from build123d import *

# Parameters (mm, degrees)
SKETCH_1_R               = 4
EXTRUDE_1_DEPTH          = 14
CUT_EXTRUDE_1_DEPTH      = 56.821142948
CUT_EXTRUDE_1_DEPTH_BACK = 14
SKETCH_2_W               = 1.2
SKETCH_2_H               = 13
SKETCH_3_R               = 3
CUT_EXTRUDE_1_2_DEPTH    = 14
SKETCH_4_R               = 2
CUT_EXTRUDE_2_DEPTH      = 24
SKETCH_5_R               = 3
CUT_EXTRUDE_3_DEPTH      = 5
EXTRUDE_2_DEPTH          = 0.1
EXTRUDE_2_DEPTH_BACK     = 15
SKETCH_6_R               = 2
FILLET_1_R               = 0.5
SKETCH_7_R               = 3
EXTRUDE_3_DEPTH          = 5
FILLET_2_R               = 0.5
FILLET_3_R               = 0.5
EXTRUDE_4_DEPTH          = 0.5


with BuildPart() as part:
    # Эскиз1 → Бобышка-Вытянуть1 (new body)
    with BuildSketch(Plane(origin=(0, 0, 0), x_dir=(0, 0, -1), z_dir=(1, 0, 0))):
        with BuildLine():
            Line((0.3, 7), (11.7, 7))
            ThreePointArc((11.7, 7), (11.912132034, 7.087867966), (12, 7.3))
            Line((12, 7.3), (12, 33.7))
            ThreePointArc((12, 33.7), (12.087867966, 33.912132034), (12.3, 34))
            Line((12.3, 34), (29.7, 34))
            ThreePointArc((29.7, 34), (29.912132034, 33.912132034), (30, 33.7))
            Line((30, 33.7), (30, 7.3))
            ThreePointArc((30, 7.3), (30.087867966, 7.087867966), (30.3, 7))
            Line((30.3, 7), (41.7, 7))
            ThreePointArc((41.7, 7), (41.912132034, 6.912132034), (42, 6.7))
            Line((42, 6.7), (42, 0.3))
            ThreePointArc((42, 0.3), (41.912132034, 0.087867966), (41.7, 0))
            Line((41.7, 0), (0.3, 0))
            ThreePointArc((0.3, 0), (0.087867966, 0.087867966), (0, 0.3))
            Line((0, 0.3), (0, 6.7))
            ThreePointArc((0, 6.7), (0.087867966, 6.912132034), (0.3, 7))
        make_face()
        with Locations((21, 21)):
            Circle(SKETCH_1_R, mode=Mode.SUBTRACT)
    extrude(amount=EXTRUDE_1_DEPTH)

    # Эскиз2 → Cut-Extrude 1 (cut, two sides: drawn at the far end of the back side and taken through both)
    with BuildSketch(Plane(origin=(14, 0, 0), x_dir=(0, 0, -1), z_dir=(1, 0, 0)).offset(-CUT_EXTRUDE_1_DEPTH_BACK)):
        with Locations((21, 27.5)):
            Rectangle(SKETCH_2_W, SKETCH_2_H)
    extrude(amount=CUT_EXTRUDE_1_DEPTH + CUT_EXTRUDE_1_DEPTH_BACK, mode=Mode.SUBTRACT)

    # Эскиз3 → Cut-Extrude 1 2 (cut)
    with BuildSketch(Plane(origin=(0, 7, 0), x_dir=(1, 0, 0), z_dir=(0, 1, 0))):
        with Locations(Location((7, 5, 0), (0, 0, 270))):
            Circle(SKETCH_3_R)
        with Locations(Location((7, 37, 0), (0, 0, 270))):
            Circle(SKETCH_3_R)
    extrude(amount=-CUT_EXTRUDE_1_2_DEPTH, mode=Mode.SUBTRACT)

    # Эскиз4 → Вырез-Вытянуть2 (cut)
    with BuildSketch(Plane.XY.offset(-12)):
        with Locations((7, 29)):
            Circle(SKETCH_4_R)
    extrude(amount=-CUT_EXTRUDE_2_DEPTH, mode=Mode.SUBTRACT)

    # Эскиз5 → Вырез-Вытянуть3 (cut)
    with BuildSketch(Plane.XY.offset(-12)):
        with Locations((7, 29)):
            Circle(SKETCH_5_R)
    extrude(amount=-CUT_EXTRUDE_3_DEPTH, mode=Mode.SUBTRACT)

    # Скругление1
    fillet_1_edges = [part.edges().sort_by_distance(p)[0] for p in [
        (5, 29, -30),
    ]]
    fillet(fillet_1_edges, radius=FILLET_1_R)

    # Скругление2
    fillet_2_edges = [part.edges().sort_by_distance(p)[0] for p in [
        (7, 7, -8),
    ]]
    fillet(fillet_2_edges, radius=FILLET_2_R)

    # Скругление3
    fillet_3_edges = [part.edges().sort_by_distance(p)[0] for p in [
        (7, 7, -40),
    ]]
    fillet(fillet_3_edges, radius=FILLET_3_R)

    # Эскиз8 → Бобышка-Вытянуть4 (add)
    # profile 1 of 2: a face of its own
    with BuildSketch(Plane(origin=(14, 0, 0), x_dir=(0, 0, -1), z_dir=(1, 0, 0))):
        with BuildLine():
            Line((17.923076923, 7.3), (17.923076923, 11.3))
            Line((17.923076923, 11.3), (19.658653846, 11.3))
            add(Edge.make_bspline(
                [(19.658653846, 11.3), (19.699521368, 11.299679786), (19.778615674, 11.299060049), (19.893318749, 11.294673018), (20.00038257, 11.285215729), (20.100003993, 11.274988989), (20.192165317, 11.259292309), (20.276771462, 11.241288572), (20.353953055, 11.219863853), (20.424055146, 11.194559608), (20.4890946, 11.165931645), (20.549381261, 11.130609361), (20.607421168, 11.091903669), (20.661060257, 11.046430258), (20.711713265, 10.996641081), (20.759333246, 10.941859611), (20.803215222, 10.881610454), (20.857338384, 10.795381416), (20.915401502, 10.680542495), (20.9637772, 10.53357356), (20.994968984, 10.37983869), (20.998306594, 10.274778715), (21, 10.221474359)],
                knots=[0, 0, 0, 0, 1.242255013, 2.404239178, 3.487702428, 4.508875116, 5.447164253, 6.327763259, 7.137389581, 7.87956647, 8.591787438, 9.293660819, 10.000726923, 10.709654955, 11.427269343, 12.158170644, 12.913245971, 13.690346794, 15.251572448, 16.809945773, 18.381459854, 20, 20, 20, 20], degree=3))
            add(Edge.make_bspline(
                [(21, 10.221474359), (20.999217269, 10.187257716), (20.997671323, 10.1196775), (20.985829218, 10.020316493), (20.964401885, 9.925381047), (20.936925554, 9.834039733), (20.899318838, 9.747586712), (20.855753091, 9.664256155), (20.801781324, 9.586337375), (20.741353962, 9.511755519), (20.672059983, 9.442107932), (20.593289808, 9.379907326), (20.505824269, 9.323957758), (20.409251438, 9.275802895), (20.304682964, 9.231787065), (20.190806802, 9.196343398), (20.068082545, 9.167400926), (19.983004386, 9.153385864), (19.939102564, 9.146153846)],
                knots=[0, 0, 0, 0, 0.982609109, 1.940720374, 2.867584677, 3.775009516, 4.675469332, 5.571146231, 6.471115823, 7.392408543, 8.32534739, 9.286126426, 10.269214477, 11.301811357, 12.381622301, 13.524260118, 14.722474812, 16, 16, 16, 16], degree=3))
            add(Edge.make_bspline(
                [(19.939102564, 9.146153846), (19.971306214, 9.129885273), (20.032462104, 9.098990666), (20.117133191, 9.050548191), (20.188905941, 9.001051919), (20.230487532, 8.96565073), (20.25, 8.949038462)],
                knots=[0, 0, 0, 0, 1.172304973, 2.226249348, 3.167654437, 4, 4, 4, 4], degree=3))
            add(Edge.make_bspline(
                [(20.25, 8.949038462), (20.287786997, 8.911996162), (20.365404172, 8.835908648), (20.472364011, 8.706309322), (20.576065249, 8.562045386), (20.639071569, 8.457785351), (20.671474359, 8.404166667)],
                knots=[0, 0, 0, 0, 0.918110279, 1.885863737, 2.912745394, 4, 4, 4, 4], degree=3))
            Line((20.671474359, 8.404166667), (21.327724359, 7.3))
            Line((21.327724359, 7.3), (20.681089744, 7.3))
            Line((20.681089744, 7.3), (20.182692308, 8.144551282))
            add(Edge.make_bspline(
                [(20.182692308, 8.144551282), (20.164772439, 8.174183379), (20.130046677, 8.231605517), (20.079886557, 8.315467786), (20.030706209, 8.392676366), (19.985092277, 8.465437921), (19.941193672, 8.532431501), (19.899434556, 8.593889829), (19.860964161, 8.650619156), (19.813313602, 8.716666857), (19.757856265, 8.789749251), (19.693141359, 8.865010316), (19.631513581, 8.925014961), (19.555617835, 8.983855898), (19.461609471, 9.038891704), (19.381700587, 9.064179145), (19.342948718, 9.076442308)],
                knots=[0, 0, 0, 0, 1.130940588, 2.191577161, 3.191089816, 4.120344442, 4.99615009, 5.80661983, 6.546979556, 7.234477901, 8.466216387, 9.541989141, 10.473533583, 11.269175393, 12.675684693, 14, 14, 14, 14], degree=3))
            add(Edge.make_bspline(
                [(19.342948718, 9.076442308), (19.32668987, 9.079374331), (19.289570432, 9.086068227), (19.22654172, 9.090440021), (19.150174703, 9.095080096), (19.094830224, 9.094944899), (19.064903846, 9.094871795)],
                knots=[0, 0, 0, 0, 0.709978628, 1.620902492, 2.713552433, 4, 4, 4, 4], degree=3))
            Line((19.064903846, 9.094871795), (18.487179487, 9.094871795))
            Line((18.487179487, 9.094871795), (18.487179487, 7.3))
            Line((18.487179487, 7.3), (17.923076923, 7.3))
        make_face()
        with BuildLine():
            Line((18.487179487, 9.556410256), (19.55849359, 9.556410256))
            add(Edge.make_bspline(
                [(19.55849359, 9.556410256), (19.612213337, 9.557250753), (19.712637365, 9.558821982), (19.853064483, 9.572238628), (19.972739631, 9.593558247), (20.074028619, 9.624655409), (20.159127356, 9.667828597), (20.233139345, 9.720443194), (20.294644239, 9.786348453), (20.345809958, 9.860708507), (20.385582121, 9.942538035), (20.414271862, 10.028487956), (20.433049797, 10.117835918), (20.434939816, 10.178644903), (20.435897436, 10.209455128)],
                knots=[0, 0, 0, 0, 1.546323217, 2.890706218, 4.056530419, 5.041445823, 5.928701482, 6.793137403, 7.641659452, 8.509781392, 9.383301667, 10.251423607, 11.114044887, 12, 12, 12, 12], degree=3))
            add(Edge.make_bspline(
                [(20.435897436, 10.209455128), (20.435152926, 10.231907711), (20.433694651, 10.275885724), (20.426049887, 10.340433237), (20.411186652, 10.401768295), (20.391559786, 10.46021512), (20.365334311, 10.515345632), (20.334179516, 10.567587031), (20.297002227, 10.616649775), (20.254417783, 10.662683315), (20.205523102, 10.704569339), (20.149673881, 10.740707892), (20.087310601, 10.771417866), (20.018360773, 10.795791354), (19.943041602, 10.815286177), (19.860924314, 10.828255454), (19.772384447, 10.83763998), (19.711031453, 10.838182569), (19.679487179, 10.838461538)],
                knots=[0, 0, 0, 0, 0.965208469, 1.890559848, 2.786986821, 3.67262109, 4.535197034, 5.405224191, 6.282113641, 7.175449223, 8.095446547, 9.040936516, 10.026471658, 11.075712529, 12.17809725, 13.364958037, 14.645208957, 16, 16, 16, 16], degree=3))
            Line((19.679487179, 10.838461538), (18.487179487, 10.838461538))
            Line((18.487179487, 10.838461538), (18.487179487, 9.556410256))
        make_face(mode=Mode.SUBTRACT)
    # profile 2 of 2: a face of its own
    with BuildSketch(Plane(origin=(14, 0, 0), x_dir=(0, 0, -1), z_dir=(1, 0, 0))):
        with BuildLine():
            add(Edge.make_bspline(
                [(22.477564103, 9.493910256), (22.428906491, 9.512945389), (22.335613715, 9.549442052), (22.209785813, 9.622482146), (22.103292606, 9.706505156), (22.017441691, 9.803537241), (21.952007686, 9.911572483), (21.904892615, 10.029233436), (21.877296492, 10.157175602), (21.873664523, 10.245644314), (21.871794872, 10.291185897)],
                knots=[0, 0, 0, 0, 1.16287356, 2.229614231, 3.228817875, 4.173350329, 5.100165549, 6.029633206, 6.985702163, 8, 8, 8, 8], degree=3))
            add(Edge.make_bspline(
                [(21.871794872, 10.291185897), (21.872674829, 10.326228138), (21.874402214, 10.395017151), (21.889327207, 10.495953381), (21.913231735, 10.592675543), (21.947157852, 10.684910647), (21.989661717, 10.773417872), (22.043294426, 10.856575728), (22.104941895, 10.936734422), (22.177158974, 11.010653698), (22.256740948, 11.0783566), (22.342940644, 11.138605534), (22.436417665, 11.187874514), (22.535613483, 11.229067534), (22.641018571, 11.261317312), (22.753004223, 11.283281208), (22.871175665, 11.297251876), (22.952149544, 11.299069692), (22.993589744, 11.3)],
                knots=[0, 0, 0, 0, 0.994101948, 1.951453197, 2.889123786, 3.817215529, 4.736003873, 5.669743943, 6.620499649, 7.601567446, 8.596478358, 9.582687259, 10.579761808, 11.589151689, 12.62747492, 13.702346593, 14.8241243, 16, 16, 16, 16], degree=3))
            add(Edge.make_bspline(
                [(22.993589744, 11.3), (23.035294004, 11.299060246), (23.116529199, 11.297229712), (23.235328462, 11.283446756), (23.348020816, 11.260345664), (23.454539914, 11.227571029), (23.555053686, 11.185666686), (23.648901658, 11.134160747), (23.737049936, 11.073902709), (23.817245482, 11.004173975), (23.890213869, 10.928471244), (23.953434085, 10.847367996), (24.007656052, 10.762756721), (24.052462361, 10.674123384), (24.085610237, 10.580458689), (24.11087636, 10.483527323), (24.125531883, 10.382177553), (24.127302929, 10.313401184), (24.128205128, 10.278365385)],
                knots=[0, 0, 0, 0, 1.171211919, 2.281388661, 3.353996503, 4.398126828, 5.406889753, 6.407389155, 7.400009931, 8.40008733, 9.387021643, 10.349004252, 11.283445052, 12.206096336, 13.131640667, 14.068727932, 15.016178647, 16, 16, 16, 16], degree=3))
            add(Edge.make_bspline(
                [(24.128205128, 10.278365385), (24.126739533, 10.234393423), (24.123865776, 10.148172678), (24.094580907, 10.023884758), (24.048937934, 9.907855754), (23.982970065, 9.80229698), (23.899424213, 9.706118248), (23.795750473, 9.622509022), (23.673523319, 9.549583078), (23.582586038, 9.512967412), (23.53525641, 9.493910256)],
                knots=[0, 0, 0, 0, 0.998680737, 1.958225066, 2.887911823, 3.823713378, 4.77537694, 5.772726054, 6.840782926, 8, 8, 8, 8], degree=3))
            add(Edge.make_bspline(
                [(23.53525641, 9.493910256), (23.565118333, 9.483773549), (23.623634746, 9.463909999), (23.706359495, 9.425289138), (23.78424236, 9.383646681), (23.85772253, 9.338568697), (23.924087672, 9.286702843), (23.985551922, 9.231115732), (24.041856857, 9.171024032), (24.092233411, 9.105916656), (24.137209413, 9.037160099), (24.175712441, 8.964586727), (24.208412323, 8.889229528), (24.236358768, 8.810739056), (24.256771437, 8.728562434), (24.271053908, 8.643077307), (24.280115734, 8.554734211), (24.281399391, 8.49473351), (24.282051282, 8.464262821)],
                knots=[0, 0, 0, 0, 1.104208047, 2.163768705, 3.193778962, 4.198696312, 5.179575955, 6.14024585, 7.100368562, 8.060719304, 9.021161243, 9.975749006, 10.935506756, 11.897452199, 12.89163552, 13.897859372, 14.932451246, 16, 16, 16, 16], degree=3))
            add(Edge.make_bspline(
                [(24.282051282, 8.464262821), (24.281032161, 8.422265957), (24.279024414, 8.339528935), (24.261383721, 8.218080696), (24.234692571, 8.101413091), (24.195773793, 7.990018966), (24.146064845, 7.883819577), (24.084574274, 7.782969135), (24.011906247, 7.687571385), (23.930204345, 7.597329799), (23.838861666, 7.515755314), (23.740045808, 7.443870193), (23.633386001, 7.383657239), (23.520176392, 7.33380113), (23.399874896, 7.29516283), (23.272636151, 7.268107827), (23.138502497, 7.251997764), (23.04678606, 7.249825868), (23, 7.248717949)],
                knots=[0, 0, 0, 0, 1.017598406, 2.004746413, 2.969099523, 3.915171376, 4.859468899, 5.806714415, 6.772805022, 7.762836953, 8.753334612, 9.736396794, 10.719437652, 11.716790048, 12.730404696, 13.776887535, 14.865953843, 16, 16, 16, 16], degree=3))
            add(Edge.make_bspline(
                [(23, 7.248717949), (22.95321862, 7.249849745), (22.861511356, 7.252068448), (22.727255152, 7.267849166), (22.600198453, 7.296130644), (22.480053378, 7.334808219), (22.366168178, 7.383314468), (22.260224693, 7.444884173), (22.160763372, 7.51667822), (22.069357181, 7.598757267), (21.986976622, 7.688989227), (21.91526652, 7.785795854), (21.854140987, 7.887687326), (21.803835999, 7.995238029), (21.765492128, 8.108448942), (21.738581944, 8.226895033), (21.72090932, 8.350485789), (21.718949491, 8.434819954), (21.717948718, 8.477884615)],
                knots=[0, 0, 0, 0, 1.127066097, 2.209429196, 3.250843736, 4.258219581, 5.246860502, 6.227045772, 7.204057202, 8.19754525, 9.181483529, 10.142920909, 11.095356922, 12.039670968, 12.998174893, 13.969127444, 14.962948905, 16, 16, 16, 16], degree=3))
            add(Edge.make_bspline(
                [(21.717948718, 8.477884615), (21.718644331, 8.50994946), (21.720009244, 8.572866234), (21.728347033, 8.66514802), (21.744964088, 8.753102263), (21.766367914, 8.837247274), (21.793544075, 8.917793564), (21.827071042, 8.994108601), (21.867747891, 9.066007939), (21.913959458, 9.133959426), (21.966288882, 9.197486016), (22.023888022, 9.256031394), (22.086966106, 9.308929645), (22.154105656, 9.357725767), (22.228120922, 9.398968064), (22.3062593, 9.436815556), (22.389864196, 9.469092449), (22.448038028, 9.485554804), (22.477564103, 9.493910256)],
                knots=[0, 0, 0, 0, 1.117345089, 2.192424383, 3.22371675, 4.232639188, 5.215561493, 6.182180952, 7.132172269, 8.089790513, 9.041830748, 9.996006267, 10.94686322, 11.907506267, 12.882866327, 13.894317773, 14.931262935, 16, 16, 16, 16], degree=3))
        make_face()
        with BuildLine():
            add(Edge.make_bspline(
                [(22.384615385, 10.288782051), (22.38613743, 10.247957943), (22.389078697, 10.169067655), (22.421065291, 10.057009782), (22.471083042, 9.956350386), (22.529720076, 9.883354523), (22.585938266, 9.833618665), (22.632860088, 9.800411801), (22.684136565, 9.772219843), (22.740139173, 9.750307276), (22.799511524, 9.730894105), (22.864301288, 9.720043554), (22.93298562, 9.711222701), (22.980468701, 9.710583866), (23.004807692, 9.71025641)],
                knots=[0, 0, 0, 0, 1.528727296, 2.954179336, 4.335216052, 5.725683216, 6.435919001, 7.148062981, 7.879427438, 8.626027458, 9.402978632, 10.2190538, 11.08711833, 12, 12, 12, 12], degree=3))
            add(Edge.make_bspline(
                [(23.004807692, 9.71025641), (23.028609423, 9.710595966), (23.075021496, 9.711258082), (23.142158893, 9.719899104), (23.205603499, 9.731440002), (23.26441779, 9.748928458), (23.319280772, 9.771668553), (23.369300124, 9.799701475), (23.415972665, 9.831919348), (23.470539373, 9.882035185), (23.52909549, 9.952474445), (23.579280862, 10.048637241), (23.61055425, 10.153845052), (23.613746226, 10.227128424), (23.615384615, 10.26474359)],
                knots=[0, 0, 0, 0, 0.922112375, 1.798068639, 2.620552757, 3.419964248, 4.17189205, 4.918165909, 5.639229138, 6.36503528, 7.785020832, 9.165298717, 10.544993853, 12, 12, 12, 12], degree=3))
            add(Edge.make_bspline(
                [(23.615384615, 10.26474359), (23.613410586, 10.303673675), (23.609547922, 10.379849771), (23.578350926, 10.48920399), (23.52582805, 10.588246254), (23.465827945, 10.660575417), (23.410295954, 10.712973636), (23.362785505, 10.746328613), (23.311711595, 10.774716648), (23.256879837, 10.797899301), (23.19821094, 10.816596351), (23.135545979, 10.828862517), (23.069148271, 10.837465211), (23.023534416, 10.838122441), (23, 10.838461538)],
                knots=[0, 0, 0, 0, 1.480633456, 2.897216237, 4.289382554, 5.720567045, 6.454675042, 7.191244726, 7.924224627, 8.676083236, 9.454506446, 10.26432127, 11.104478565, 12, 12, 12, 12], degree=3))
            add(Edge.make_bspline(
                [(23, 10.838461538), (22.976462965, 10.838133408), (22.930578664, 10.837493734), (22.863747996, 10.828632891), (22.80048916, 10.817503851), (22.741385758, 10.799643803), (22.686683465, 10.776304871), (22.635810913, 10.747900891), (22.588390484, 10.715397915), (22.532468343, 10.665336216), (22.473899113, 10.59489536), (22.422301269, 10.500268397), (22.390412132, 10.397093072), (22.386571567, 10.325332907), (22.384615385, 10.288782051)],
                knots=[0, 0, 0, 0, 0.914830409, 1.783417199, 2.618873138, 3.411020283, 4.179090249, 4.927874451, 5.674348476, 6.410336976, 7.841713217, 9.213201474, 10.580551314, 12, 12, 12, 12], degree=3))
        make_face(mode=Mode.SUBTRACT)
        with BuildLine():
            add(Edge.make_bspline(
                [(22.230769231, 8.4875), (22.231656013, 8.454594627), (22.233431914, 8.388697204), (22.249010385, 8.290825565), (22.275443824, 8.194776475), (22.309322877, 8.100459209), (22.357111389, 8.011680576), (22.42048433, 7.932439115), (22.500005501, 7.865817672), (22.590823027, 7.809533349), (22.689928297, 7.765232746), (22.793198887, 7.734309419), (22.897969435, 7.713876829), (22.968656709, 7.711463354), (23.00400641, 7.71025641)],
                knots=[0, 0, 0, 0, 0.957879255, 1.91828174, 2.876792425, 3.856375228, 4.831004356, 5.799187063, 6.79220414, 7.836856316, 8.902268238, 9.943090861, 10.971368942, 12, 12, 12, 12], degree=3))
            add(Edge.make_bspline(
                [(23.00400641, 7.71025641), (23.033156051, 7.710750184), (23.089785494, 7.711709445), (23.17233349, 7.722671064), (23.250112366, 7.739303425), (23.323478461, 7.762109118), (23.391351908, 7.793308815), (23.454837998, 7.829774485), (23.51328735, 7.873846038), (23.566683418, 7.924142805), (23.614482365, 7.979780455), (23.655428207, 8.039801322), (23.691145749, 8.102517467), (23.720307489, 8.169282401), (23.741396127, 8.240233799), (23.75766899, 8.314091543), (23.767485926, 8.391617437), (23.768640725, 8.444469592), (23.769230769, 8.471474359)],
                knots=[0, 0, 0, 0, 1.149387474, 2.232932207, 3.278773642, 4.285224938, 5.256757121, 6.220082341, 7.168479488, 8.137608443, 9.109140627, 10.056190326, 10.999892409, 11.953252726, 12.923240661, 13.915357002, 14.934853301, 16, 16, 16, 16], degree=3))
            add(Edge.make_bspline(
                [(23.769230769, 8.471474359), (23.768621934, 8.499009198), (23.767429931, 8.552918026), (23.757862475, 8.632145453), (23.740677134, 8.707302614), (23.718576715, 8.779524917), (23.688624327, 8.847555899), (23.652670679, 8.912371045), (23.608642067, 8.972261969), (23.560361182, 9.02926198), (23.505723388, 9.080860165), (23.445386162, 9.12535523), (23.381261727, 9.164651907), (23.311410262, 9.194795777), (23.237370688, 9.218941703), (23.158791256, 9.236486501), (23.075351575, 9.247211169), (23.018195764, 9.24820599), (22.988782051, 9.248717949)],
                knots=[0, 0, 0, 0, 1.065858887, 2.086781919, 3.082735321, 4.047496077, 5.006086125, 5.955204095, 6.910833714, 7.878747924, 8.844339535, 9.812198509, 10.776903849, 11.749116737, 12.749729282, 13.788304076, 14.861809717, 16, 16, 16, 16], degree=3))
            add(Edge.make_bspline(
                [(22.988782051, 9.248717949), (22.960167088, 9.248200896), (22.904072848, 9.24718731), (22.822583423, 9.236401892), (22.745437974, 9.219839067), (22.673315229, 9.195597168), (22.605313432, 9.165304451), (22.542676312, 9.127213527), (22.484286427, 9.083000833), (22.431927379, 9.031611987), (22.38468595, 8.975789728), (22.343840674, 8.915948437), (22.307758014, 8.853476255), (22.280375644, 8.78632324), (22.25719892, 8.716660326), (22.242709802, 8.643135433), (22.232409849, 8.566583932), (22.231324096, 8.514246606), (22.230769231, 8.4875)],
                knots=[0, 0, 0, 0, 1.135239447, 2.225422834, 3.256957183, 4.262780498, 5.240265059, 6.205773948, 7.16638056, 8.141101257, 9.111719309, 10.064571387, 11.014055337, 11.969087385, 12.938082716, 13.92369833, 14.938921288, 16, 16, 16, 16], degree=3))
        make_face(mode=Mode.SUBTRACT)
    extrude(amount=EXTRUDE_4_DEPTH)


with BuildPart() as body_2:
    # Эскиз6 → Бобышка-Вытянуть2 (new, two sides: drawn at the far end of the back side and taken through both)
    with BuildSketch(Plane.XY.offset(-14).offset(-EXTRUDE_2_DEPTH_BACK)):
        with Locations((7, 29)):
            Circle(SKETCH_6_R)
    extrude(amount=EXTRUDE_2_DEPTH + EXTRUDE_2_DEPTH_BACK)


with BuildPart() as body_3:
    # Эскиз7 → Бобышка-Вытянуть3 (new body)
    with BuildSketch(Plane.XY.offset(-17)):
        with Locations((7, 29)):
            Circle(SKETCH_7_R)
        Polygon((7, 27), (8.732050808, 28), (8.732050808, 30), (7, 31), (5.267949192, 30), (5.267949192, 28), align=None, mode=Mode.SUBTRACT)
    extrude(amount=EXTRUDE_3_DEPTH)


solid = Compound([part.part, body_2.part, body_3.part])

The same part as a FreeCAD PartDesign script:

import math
import FreeCAD as App
import Part
import Sketcher
from FreeCAD import Vector
Q = App.Units.Quantity


def edges_at(feature, points):
    """Names of the edges that pass closest to the given points."""
    edges = feature.Shape.Edges
    near = lambda p: min(range(len(edges)), key=lambda i: edges[i].distToShape(Part.Vertex(*p))[0])
    return sorted({f"Edge{near(p) + 1}" for p in points})


def add_polygon(sketch, points):
    """Adds a closed chain of lines whose ends are joined by coincident constraints."""
    first, n = sketch.GeometryCount, len(points)
    for a, b in zip(points, points[1:] + points[:1]):
        sketch.addGeometry(Part.LineSegment(App.Vector(*a, 0), App.Vector(*b, 0)), False)
    for i in range(n):
        sketch.addConstraint(Sketcher.Constraint("Coincident", first + i, 2, first + (i + 1) % n, 1))

doc = App.newDocument("Part")
body = doc.addObject("PartDesign::Body", "Body")

sketch1 = body.newObject("Sketcher::SketchObject", "Sketch")
sketch1.AttachmentSupport = (doc.getObject("YZ_Plane"), [""])
sketch1.MapMode = "FlatFace"
sketch1.addGeometry([
    Part.LineSegment(Vector(7, -11.7, 0), Vector(7, -0.3, 0)),
    Part.ArcOfCircle(Part.Circle(Vector(6.7, -0.3, 0), Vector(0, 0, 1), 0.3), math.radians(0), math.radians(90)),
    Part.LineSegment(Vector(6.7, 0, 0), Vector(0.3, 0, 0)),
    Part.ArcOfCircle(Part.Circle(Vector(0.3, -0.3, 0), Vector(0, 0, 1), 0.3), math.radians(90), math.radians(180)),
    Part.LineSegment(Vector(0, -0.3, 0), Vector(0, -41.7, 0)),
    Part.ArcOfCircle(Part.Circle(Vector(0.3, -41.7, 0), Vector(0, 0, 1), 0.3), math.radians(-180), math.radians(-90)),
    Part.LineSegment(Vector(0.3, -42, 0), Vector(6.7, -42, 0)),
    Part.ArcOfCircle(Part.Circle(Vector(6.7, -41.7, 0), Vector(0, 0, 1), 0.3), math.radians(-90), math.radians(0)),
    Part.LineSegment(Vector(7, -41.7, 0), Vector(7, -30.3, 0)),
    Part.ArcOfCircle(Part.Circle(Vector(7.3, -30.3, 0), Vector(0, 0, 1), 0.3), math.radians(90), math.radians(180)),
    Part.LineSegment(Vector(7.3, -30, 0), Vector(33.7, -30, 0)),
    Part.ArcOfCircle(Part.Circle(Vector(33.7, -29.7, 0), Vector(0, 0, 1), 0.3), math.radians(-90), math.radians(0)),
    Part.LineSegment(Vector(34, -29.7, 0), Vector(34, -12.3, 0)),
    Part.ArcOfCircle(Part.Circle(Vector(33.7, -12.3, 0), Vector(0, 0, 1), 0.3), math.radians(0), math.radians(90)),
    Part.LineSegment(Vector(33.7, -12, 0), Vector(7.3, -12, 0)),
    Part.ArcOfCircle(Part.Circle(Vector(7.3, -11.7, 0), Vector(0, 0, 1), 0.3), math.radians(-180), math.radians(-90)),
    Part.Circle(Vector(21, -21, 0), Vector(0, 0, 1), 4),
], False)
sketch1.addConstraint([
    Sketcher.Constraint("Tangent", 0, 2, 1, 1),
    Sketcher.Constraint("Tangent", 1, 2, 2, 1),
    Sketcher.Constraint("Tangent", 2, 2, 3, 1),
    Sketcher.Constraint("Tangent", 3, 2, 4, 1),
    Sketcher.Constraint("Tangent", 4, 2, 5, 1),
    Sketcher.Constraint("Tangent", 5, 2, 6, 1),
    Sketcher.Constraint("Tangent", 6, 2, 7, 1),
    Sketcher.Constraint("Tangent", 7, 2, 8, 1),
    Sketcher.Constraint("Tangent", 8, 2, 9, 2),
    Sketcher.Constraint("Tangent", 9, 1, 10, 1),
    Sketcher.Constraint("Tangent", 10, 2, 11, 1),
    Sketcher.Constraint("Tangent", 11, 2, 12, 1),
    Sketcher.Constraint("Tangent", 12, 2, 13, 1),
    Sketcher.Constraint("Tangent", 13, 2, 14, 1),
    Sketcher.Constraint("Tangent", 14, 2, 15, 2),
    Sketcher.Constraint("Tangent", 15, 1, 0, 1),
    Sketcher.Constraint("Vertical", 0),
    Sketcher.Constraint("Horizontal", 2),
    Sketcher.Constraint("Vertical", 4),
    Sketcher.Constraint("Horizontal", 6),
    Sketcher.Constraint("Vertical", 8),
    Sketcher.Constraint("Horizontal", 10),
    Sketcher.Constraint("Vertical", 12),
    Sketcher.Constraint("Horizontal", 14),
    Sketcher.Constraint("Equal", 1, 3),
    Sketcher.Constraint("Equal", 3, 5),
    Sketcher.Constraint("Equal", 5, 7),
    Sketcher.Constraint("Equal", 7, 9),
    Sketcher.Constraint("Equal", 9, 11),
    Sketcher.Constraint("Equal", 11, 13),
    Sketcher.Constraint("Equal", 13, 15),
    Sketcher.Constraint("PointOnObject", 1, 2, -1),
    Sketcher.Constraint("PointOnObject", 3, 2, -2),
    Sketcher.Constraint("Vertical", 1, 3, 7, 3),
    Sketcher.Constraint("Equal", 0, 8),
    Sketcher.Constraint("Diameter", 16, Q("8 mm")),
    Sketcher.Constraint("Radius", 1, Q("0.3 mm")),
    Sketcher.Constraint("DistanceX", 2, 2, 2, 1, Q("6.4 mm")),
    Sketcher.Constraint("DistanceX", 10, 1, 10, 2, Q("26.4 mm")),
    Sketcher.Constraint("DistanceY", 0, 1, 0, 2, Q("11.4 mm")),
    Sketcher.Constraint("DistanceY", 4, 2, 4, 1, Q("41.4 mm")),
    Sketcher.Constraint("DistanceX", -1, 1, 16, 3, Q("21 mm")),
    Sketcher.Constraint("DistanceY", 16, 3, -1, 1, Q("21 mm")),
])
pad1 = body.newObject("PartDesign::Pad", "Pad")
pad1.Profile = sketch1
pad1.Length = 14

sketch2 = body.newObject("Sketcher::SketchObject", "Sketch001")
sketch2.AttachmentSupport = (doc.getObject("YZ_Plane"), [""])
sketch2.MapMode = "FlatFace"
sketch2.AttachmentOffset = App.Placement(Vector(0, 0, 14), App.Rotation())
add_polygon(sketch2, [(34, -20.4), (21, -20.4), (21, -21.6), (34, -21.6)])
sketch2.addConstraint([
    Sketcher.Constraint("Horizontal", 0),
    Sketcher.Constraint("Vertical", 1),
    Sketcher.Constraint("Horizontal", 2),
    Sketcher.Constraint("Vertical", 3),
    Sketcher.Constraint("DistanceX", 0, 2, 0, 1, Q("13 mm")),
    Sketcher.Constraint("DistanceY", 1, 2, 1, 1, Q("1.2 mm")),
    Sketcher.Constraint("DistanceX", -1, 1, 0, 2, Q("21 mm")),
    Sketcher.Constraint("DistanceY", 0, 2, -1, 1, Q("20.4 mm")),
])
pocket1 = body.newObject("PartDesign::Pocket", "Pocket")
pocket1.Profile = sketch2
pocket1.Type = "ThroughAll"
pocket1.Midplane = True

sketch3 = body.newObject("Sketcher::SketchObject", "Sketch002")
sketch3.AttachmentSupport = (doc.getObject("XZ_Plane"), [""])
sketch3.MapMode = "FlatFace"
sketch3.AttachmentOffset = App.Placement(Vector(0, 0, -7), App.Rotation())
sketch3.addGeometry([
    Part.Circle(Vector(7, -5, 0), Vector(0, 0, 1), 3),
    Part.Circle(Vector(7, -37, 0), Vector(0, 0, 1), 3),
], False)
sketch3.addConstraint([
    Sketcher.Constraint("Equal", 0, 1),
    Sketcher.Constraint("Vertical", 0, 3, 1, 3),
    Sketcher.Constraint("Diameter", 0, Q("6 mm")),
    Sketcher.Constraint("DistanceX", -1, 1, 0, 3, Q("7 mm")),
    Sketcher.Constraint("DistanceY", 0, 3, -1, 1, Q("5 mm")),
    Sketcher.Constraint("DistanceY", 1, 3, -1, 1, Q("37 mm")),
])
pocket2 = body.newObject("PartDesign::Pocket", "Pocket001")
pocket2.Profile = sketch3
pocket2.Length = 14
pocket2.Reversed = True

sketch4 = body.newObject("Sketcher::SketchObject", "Sketch003")
sketch4.AttachmentSupport = (doc.getObject("XY_Plane"), [""])
sketch4.MapMode = "FlatFace"
sketch4.AttachmentOffset = App.Placement(Vector(0, 0, -12), App.Rotation())
sketch4.addGeometry(Part.Circle(Vector(7, 29, 0), Vector(0, 0, 1), 2), False)
sketch4.addConstraint([
    Sketcher.Constraint("Diameter", 0, Q("4 mm")),
    Sketcher.Constraint("DistanceX", -1, 1, 0, 3, Q("7 mm")),
    Sketcher.Constraint("DistanceY", -1, 1, 0, 3, Q("29 mm")),
])
pocket3 = body.newObject("PartDesign::Pocket", "Pocket002")
pocket3.Profile = sketch4
pocket3.Length = 24

sketch5 = body.newObject("Sketcher::SketchObject", "Sketch004")
sketch5.AttachmentSupport = (doc.getObject("XY_Plane"), [""])
sketch5.MapMode = "FlatFace"
sketch5.AttachmentOffset = App.Placement(Vector(0, 0, -12), App.Rotation())
sketch5.addGeometry(Part.Circle(Vector(7, 29, 0), Vector(0, 0, 1), 3), False)
sketch5.addConstraint([
    Sketcher.Constraint("Diameter", 0, Q("6 mm")),
    Sketcher.Constraint("DistanceX", -1, 1, 0, 3, Q("7 mm")),
    Sketcher.Constraint("DistanceY", -1, 1, 0, 3, Q("29 mm")),
])
pocket4 = body.newObject("PartDesign::Pocket", "Pocket003")
pocket4.Profile = sketch5
pocket4.Length = 5
doc.recompute()

fillet = body.newObject("PartDesign::Fillet", "Fillet")
fillet.Base = (pocket4, edges_at(pocket4, [(5, 29, -30)]))
fillet.Radius = 0.5
doc.recompute()

fillet2 = body.newObject("PartDesign::Fillet", "Fillet001")
fillet2.Base = (fillet, edges_at(fillet, [(7, 7, -8)]))
fillet2.Radius = 0.5
doc.recompute()

fillet3 = body.newObject("PartDesign::Fillet", "Fillet002")
fillet3.Base = (fillet2, edges_at(fillet2, [(7, 7, -40)]))
fillet3.Radius = 0.5

sketch6 = body.newObject("Sketcher::SketchObject", "Sketch005")
sketch6.AttachmentSupport = (doc.getObject("YZ_Plane"), [""])
sketch6.MapMode = "FlatFace"
sketch6.AttachmentOffset = App.Placement(Vector(0, 0, 14), App.Rotation())
sketch6.addGeometry([
    Part.LineSegment(Vector(11.3, -17.923077, 0), Vector(7.3, -17.923077, 0)),
    Part.LineSegment(Vector(7.3, -17.923077, 0), Vector(7.3, -18.487179, 0)),
    Part.LineSegment(Vector(7.3, -18.487179, 0), Vector(9.094872, -18.487179, 0)),
    Part.LineSegment(Vector(9.094872, -18.487179, 0), Vector(9.094872, -19.064904, 0)),
    Part.BSplineCurve([Vector(9.076442, -19.342949, 0), Vector(9.079374, -19.32669, 0), Vector(9.086068, -19.28957, 0), Vector(9.09044, -19.226542, 0), Vector(9.09508, -19.150175, 0), Vector(9.094945, -19.09483, 0), Vector(9.094872, -19.064904, 0)], [4, 1, 1, 1, 4], [0, 0.709978628, 1.620902492, 2.713552433, 4], False, 3, [1, 1, 1, 1, 1, 1, 1], False),
    Part.BSplineCurve([Vector(8.144551, -20.182692, 0), Vector(8.174183, -20.164772, 0), Vector(8.231606, -20.130047, 0), Vector(8.315468, -20.079887, 0), Vector(8.392676, -20.030706, 0), Vector(8.465438, -19.985092, 0), Vector(8.532432, -19.941194, 0), Vector(8.59389, -19.899435, 0), Vector(8.650619, -19.860964, 0), Vector(8.716667, -19.813314, 0), Vector(8.789749, -19.757856, 0), Vector(8.86501, -19.693141, 0), Vector(8.925015, -19.631514, 0), Vector(8.983856, -19.555618, 0), Vector(9.038892, -19.461609, 0), Vector(9.064179, -19.381701, 0), Vector(9.076442, -19.342949, 0)], [4, 1, 1, 1, 1, 1, 1, 1, 1, 1, 1, 1, 1, 1, 4], [0, 1.130940588, 2.191577161, 3.191089816, 4.120344442, 4.99615009, 5.80661983, 6.546979556, 7.234477901, 8.466216387, 9.541989141, 10.473533583, 11.269175393, 12.675684693, 14], False, 3, [1, 1, 1, 1, 1, 1, 1, 1, 1, 1, 1, 1, 1, 1, 1, 1, 1], False),
    Part.LineSegment(Vector(8.144551, -20.182692, 0), Vector(7.3, -20.68109, 0)),
    Part.LineSegment(Vector(7.3, -20.68109, 0), Vector(7.3, -21.327724, 0)),
    Part.LineSegment(Vector(7.3, -21.327724, 0), Vector(8.404167, -20.671474, 0)),
    Part.BSplineCurve([Vector(8.949038, -20.25, 0), Vector(8.911996, -20.287787, 0), Vector(8.835909, -20.365404, 0), Vector(8.706309, -20.472364, 0), Vector(8.562045, -20.576065, 0), Vector(8.457785, -20.639072, 0), Vector(8.404167, -20.671474, 0)], [4, 1, 1, 1, 4], [0, 0.918110279, 1.885863737, 2.912745394, 4], False, 3, [1, 1, 1, 1, 1, 1, 1], False),
    Part.BSplineCurve([Vector(9.146154, -19.939103, 0), Vector(9.129885, -19.971306, 0), Vector(9.098991, -20.032462, 0), Vector(9.050548, -20.117133, 0), Vector(9.001052, -20.188906, 0), Vector(8.965651, -20.230488, 0), Vector(8.949038, -20.25, 0)], [4, 1, 1, 1, 4], [0, 1.172304973, 2.226249348, 3.167654437, 4], False, 3, [1, 1, 1, 1, 1, 1, 1], False),
    Part.BSplineCurve([Vector(10.221474, -21, 0), Vector(10.187258, -20.999217, 0), Vector(10.119677, -20.997671, 0), Vector(10.020316, -20.985829, 0), Vector(9.925381, -20.964402, 0), Vector(9.83404, -20.936926, 0), Vector(9.747587, -20.899319, 0), Vector(9.664256, -20.855753, 0), Vector(9.586337, -20.801781, 0), Vector(9.511756, -20.741354, 0), Vector(9.442108, -20.67206, 0), Vector(9.379907, -20.59329, 0), Vector(9.323958, -20.505824, 0), Vector(9.275803, -20.409251, 0), Vector(9.231787, -20.304683, 0), Vector(9.196343, -20.190807, 0), Vector(9.167401, -20.068083, 0), Vector(9.153386, -19.983004, 0), Vector(9.146154, -19.939103, 0)], [4, 1, 1, 1, 1, 1, 1, 1, 1, 1, 1, 1, 1, 1, 1, 1, 4], [0, 0.982609109, 1.940720374, 2.867584677, 3.775009516, 4.675469332, 5.571146231, 6.471115823, 7.392408543, 8.32534739, 9.286126426, 10.269214477, 11.301811357, 12.381622301, 13.524260118, 14.722474812, 16], False, 3, [1, 1, 1, 1, 1, 1, 1, 1, 1, 1, 1, 1, 1, 1, 1, 1, 1, 1, 1], False),
    Part.BSplineCurve([Vector(11.3, -19.658654, 0), Vector(11.29968, -19.699521, 0), Vector(11.29906, -19.778616, 0), Vector(11.294673, -19.893319, 0), Vector(11.285216, -20.000383, 0), Vector(11.274989, -20.100004, 0), Vector(11.259292, -20.192165, 0), Vector(11.241289, -20.276771, 0), Vector(11.219864, -20.353953, 0), Vector(11.19456, -20.424055, 0), Vector(11.165932, -20.489095, 0), Vector(11.130609, -20.549381, 0), Vector(11.091904, -20.607421, 0), Vector(11.04643, -20.66106, 0), Vector(10.996641, -20.711713, 0), Vector(10.94186, -20.759333, 0), Vector(10.88161, -20.803215, 0), Vector(10.795381, -20.857338, 0), Vector(10.680542, -20.915402, 0), Vector(10.533574, -20.963777, 0), Vector(10.379839, -20.994969, 0), Vector(10.274779, -20.998307, 0), Vector(10.221474, -21, 0)], [4, 1, 1, 1, 1, 1, 1, 1, 1, 1, 1, 1, 1, 1, 1, 1, 1, 1, 1, 1, 4], [0, 1.242255013, 2.404239178, 3.487702428, 4.508875116, 5.447164253, 6.327763259, 7.137389581, 7.87956647, 8.591787438, 9.293660819, 10.000726923, 10.709654955, 11.427269343, 12.158170644, 12.913245971, 13.690346794, 15.251572448, 16.809945773, 18.381459854, 20], False, 3, [1, 1, 1, 1, 1, 1, 1, 1, 1, 1, 1, 1, 1, 1, 1, 1, 1, 1, 1, 1, 1, 1, 1], False),
    Part.LineSegment(Vector(11.3, -19.658654, 0), Vector(11.3, -17.923077, 0)),
    Part.LineSegment(Vector(9.55641, -18.487179, 0), Vector(10.838462, -18.487179, 0)),
    Part.LineSegment(Vector(10.838462, -18.487179, 0), Vector(10.838462, -19.679487, 0)),
    Part.BSplineCurve([Vector(10.209455, -20.435897, 0), Vector(10.231908, -20.435153, 0), Vector(10.275886, -20.433695, 0), Vector(10.340433, -20.42605, 0), Vector(10.401768, -20.411187, 0), Vector(10.460215, -20.39156, 0), Vector(10.515346, -20.365334, 0), Vector(10.567587, -20.33418, 0), Vector(10.61665, -20.297002, 0), Vector(10.662683, -20.254418, 0), Vector(10.704569, -20.205523, 0), Vector(10.740708, -20.149674, 0), Vector(10.771418, -20.087311, 0), Vector(10.795791, -20.018361, 0), Vector(10.815286, -19.943042, 0), Vector(10.828255, -19.860924, 0), Vector(10.83764, -19.772384, 0), Vector(10.838183, -19.711031, 0), Vector(10.838462, -19.679487, 0)], [4, 1, 1, 1, 1, 1, 1, 1, 1, 1, 1, 1, 1, 1, 1, 1, 4], [0, 0.965208469, 1.890559848, 2.786986821, 3.67262109, 4.535197034, 5.405224191, 6.282113641, 7.175449223, 8.095446547, 9.040936516, 10.026471658, 11.075712529, 12.17809725, 13.364958037, 14.645208957, 16], False, 3, [1, 1, 1, 1, 1, 1, 1, 1, 1, 1, 1, 1, 1, 1, 1, 1, 1, 1, 1], False),
    Part.BSplineCurve([Vector(9.55641, -19.558494, 0), Vector(9.557251, -19.612213, 0), Vector(9.558822, -19.712637, 0), Vector(9.572239, -19.853064, 0), Vector(9.593558, -19.97274, 0), Vector(9.624655, -20.074029, 0), Vector(9.667829, -20.159127, 0), Vector(9.720443, -20.233139, 0), Vector(9.786348, -20.294644, 0), Vector(9.860709, -20.34581, 0), Vector(9.942538, -20.385582, 0), Vector(10.028488, -20.414272, 0), Vector(10.117836, -20.43305, 0), Vector(10.178645, -20.43494, 0), Vector(10.209455, -20.435897, 0)], [4, 1, 1, 1, 1, 1, 1, 1, 1, 1, 1, 1, 4], [0, 1.546323217, 2.890706218, 4.056530419, 5.041445823, 5.928701482, 6.793137403, 7.641659452, 8.509781392, 9.383301667, 10.251423607, 11.114044887, 12], False, 3, [1, 1, 1, 1, 1, 1, 1, 1, 1, 1, 1, 1, 1, 1, 1], False),
    Part.LineSegment(Vector(9.55641, -19.558494, 0), Vector(9.55641, -18.487179, 0)),
    Part.BSplineCurve([Vector(9.49391, -22.477564, 0), Vector(9.512945, -22.428906, 0), Vector(9.549442, -22.335614, 0), Vector(9.622482, -22.209786, 0), Vector(9.706505, -22.103293, 0), Vector(9.803537, -22.017442, 0), Vector(9.911572, -21.952008, 0), Vector(10.029233, -21.904893, 0), Vector(10.157176, -21.877296, 0), Vector(10.245644, -21.873665, 0), Vector(10.291186, -21.871795, 0)], [4, 1, 1, 1, 1, 1, 1, 1, 4], [0, 1.16287356, 2.229614231, 3.228817875, 4.173350329, 5.100165549, 6.029633206, 6.985702163, 8], False, 3, [1, 1, 1, 1, 1, 1, 1, 1, 1, 1, 1], False),
    Part.BSplineCurve([Vector(8.477885, -21.717949, 0), Vector(8.509949, -21.718644, 0), Vector(8.572866, -21.720009, 0), Vector(8.665148, -21.728347, 0), Vector(8.753102, -21.744964, 0), Vector(8.837247, -21.766368, 0), Vector(8.917794, -21.793544, 0), Vector(8.994109, -21.827071, 0), Vector(9.066008, -21.867748, 0), Vector(9.133959, -21.913959, 0), Vector(9.197486, -21.966289, 0), Vector(9.256031, -22.023888, 0), Vector(9.30893, -22.086966, 0), Vector(9.357726, -22.154106, 0), Vector(9.398968, -22.228121, 0), Vector(9.436816, -22.306259, 0), Vector(9.469092, -22.389864, 0), Vector(9.485555, -22.448038, 0), Vector(9.49391, -22.477564, 0)], [4, 1, 1, 1, 1, 1, 1, 1, 1, 1, 1, 1, 1, 1, 1, 1, 4], [0, 1.117345089, 2.192424383, 3.22371675, 4.232639188, 5.215561493, 6.182180952, 7.132172269, 8.089790513, 9.041830748, 9.996006267, 10.94686322, 11.907506267, 12.882866327, 13.894317773, 14.931262935, 16], False, 3, [1, 1, 1, 1, 1, 1, 1, 1, 1, 1, 1, 1, 1, 1, 1, 1, 1, 1, 1], False),
    Part.BSplineCurve([Vector(7.248718, -23, 0), Vector(7.24985, -22.953219, 0), Vector(7.252068, -22.861511, 0), Vector(7.267849, -22.727255, 0), Vector(7.296131, -22.600198, 0), Vector(7.334808, -22.480053, 0), Vector(7.383314, -22.366168, 0), Vector(7.444884, -22.260225, 0), Vector(7.516678, -22.160763, 0), Vector(7.598757, -22.069357, 0), Vector(7.688989, -21.986977, 0), Vector(7.785796, -21.915267, 0), Vector(7.887687, -21.854141, 0), Vector(7.995238, -21.803836, 0), Vector(8.108449, -21.765492, 0), Vector(8.226895, -21.738582, 0), Vector(8.350486, -21.720909, 0), Vector(8.43482, -21.718949, 0), Vector(8.477885, -21.717949, 0)], [4, 1, 1, 1, 1, 1, 1, 1, 1, 1, 1, 1, 1, 1, 1, 1, 4], [0, 1.127066097, 2.209429196, 3.250843736, 4.258219581, 5.246860502, 6.227045772, 7.204057202, 8.19754525, 9.181483529, 10.142920909, 11.095356922, 12.039670968, 12.998174893, 13.969127444, 14.962948905, 16], False, 3, [1, 1, 1, 1, 1, 1, 1, 1, 1, 1, 1, 1, 1, 1, 1, 1, 1, 1, 1], False),
    Part.BSplineCurve([Vector(8.464263, -24.282051, 0), Vector(8.422266, -24.281032, 0), Vector(8.339529, -24.279024, 0), Vector(8.218081, -24.261384, 0), Vector(8.101413, -24.234693, 0), Vector(7.990019, -24.195774, 0), Vector(7.88382, -24.146065, 0), Vector(7.782969, -24.084574, 0), Vector(7.687571, -24.011906, 0), Vector(7.59733, -23.930204, 0), Vector(7.515755, -23.838862, 0), Vector(7.44387, -23.740046, 0), Vector(7.383657, -23.633386, 0), Vector(7.333801, -23.520176, 0), Vector(7.295163, -23.399875, 0), Vector(7.268108, -23.272636, 0), Vector(7.251998, -23.138502, 0), Vector(7.249826, -23.046786, 0), Vector(7.248718, -23, 0)], [4, 1, 1, 1, 1, 1, 1, 1, 1, 1, 1, 1, 1, 1, 1, 1, 4], [0, 1.017598406, 2.004746413, 2.969099523, 3.915171376, 4.859468899, 5.806714415, 6.772805022, 7.762836953, 8.753334612, 9.736396794, 10.719437652, 11.716790048, 12.730404696, 13.776887535, 14.865953843, 16], False, 3, [1, 1, 1, 1, 1, 1, 1, 1, 1, 1, 1, 1, 1, 1, 1, 1, 1, 1, 1], False),
    Part.BSplineCurve([Vector(9.49391, -23.535256, 0), Vector(9.483774, -23.565118, 0), Vector(9.46391, -23.623635, 0), Vector(9.425289, -23.706359, 0), Vector(9.383647, -23.784242, 0), Vector(9.338569, -23.857723, 0), Vector(9.286703, -23.924088, 0), Vector(9.231116, -23.985552, 0), Vector(9.171024, -24.041857, 0), Vector(9.105917, -24.092233, 0), Vector(9.03716, -24.137209, 0), Vector(8.964587, -24.175712, 0), Vector(8.88923, -24.208412, 0), Vector(8.810739, -24.236359, 0), Vector(8.728562, -24.256771, 0), Vector(8.643077, -24.271054, 0), Vector(8.554734, -24.280116, 0), Vector(8.494734, -24.281399, 0), Vector(8.464263, -24.282051, 0)], [4, 1, 1, 1, 1, 1, 1, 1, 1, 1, 1, 1, 1, 1, 1, 1, 4], [0, 1.104208047, 2.163768705, 3.193778962, 4.198696312, 5.179575955, 6.14024585, 7.100368562, 8.060719304, 9.021161243, 9.975749006, 10.935506756, 11.897452199, 12.89163552, 13.897859372, 14.932451246, 16], False, 3, [1, 1, 1, 1, 1, 1, 1, 1, 1, 1, 1, 1, 1, 1, 1, 1, 1, 1, 1], False),
    Part.BSplineCurve([Vector(10.278365, -24.128205, 0), Vector(10.234393, -24.12674, 0), Vector(10.148173, -24.123866, 0), Vector(10.023885, -24.094581, 0), Vector(9.907856, -24.048938, 0), Vector(9.802297, -23.98297, 0), Vector(9.706118, -23.899424, 0), Vector(9.622509, -23.79575, 0), Vector(9.549583, -23.673523, 0), Vector(9.512967, -23.582586, 0), Vector(9.49391, -23.535256, 0)], [4, 1, 1, 1, 1, 1, 1, 1, 4], [0, 0.998680737, 1.958225066, 2.887911823, 3.823713378, 4.77537694, 5.772726054, 6.840782926, 8], False, 3, [1, 1, 1, 1, 1, 1, 1, 1, 1, 1, 1], False),
    Part.BSplineCurve([Vector(11.3, -22.99359, 0), Vector(11.29906, -23.035294, 0), Vector(11.29723, -23.116529, 0), Vector(11.283447, -23.235328, 0), Vector(11.260346, -23.348021, 0), Vector(11.227571, -23.45454, 0), Vector(11.185667, -23.555054, 0), Vector(11.134161, -23.648902, 0), Vector(11.073903, -23.73705, 0), Vector(11.004174, -23.817245, 0), Vector(10.928471, -23.890214, 0), Vector(10.847368, -23.953434, 0), Vector(10.762757, -24.007656, 0), Vector(10.674123, -24.052462, 0), Vector(10.580459, -24.08561, 0), Vector(10.483527, -24.110876, 0), Vector(10.382178, -24.125532, 0), Vector(10.313401, -24.127303, 0), Vector(10.278365, -24.128205, 0)], [4, 1, 1, 1, 1, 1, 1, 1, 1, 1, 1, 1, 1, 1, 1, 1, 4], [0, 1.171211919, 2.281388661, 3.353996503, 4.398126828, 5.406889753, 6.407389155, 7.400009931, 8.40008733, 9.387021643, 10.349004252, 11.283445052, 12.206096336, 13.131640667, 14.068727932, 15.016178647, 16], False, 3, [1, 1, 1, 1, 1, 1, 1, 1, 1, 1, 1, 1, 1, 1, 1, 1, 1, 1, 1], False),
    Part.BSplineCurve([Vector(10.291186, -21.871795, 0), Vector(10.326228, -21.872675, 0), Vector(10.395017, -21.874402, 0), Vector(10.495953, -21.889327, 0), Vector(10.592676, -21.913232, 0), Vector(10.684911, -21.947158, 0), Vector(10.773418, -21.989662, 0), Vector(10.856576, -22.043294, 0), Vector(10.936734, -22.104942, 0), Vector(11.010654, -22.177159, 0), Vector(11.078357, -22.256741, 0), Vector(11.138606, -22.342941, 0), Vector(11.187875, -22.436418, 0), Vector(11.229068, -22.535613, 0), Vector(11.261317, -22.641019, 0), Vector(11.283281, -22.753004, 0), Vector(11.297252, -22.871176, 0), Vector(11.29907, -22.95215, 0), Vector(11.3, -22.99359, 0)], [4, 1, 1, 1, 1, 1, 1, 1, 1, 1, 1, 1, 1, 1, 1, 1, 4], [0, 0.994101948, 1.951453197, 2.889123786, 3.817215529, 4.736003873, 5.669743943, 6.620499649, 7.601567446, 8.596478358, 9.582687259, 10.579761808, 11.589151689, 12.62747492, 13.702346593, 14.8241243, 16], False, 3, [1, 1, 1, 1, 1, 1, 1, 1, 1, 1, 1, 1, 1, 1, 1, 1, 1, 1, 1], False),
    Part.BSplineCurve([Vector(9.248718, -22.988782, 0), Vector(9.248201, -22.960167, 0), Vector(9.247187, -22.904073, 0), Vector(9.236402, -22.822583, 0), Vector(9.219839, -22.745438, 0), Vector(9.195597, -22.673315, 0), Vector(9.165304, -22.605313, 0), Vector(9.127214, -22.542676, 0), Vector(9.083001, -22.484286, 0), Vector(9.031612, -22.431927, 0), Vector(8.97579, -22.384686, 0), Vector(8.915948, -22.343841, 0), Vector(8.853476, -22.307758, 0), Vector(8.786323, -22.280376, 0), Vector(8.71666, -22.257199, 0), Vector(8.643135, -22.24271, 0), Vector(8.566584, -22.23241, 0), Vector(8.514247, -22.231324, 0), Vector(8.4875, -22.230769, 0)], [4, 1, 1, 1, 1, 1, 1, 1, 1, 1, 1, 1, 1, 1, 1, 1, 4], [0, 1.135239447, 2.225422834, 3.256957183, 4.262780498, 5.240265059, 6.205773948, 7.16638056, 8.141101257, 9.111719309, 10.064571387, 11.014055337, 11.969087385, 12.938082716, 13.92369833, 14.938921288, 16], False, 3, [1, 1, 1, 1, 1, 1, 1, 1, 1, 1, 1, 1, 1, 1, 1, 1, 1, 1, 1], False),
    Part.BSplineCurve([Vector(8.471474, -23.769231, 0), Vector(8.499009, -23.768622, 0), Vector(8.552918, -23.76743, 0), Vector(8.632145, -23.757862, 0), Vector(8.707303, -23.740677, 0), Vector(8.779525, -23.718577, 0), Vector(8.847556, -23.688624, 0), Vector(8.912371, -23.652671, 0), Vector(8.972262, -23.608642, 0), Vector(9.029262, -23.560361, 0), Vector(9.08086, -23.505723, 0), Vector(9.125355, -23.445386, 0), Vector(9.164652, -23.381262, 0), Vector(9.194796, -23.31141, 0), Vector(9.218942, -23.237371, 0), Vector(9.236487, -23.158791, 0), Vector(9.247211, -23.075352, 0), Vector(9.248206, -23.018196, 0), Vector(9.248718, -22.988782, 0)], [4, 1, 1, 1, 1, 1, 1, 1, 1, 1, 1, 1, 1, 1, 1, 1, 4], [0, 1.065858887, 2.086781919, 3.082735321, 4.047496077, 5.006086125, 5.955204095, 6.910833714, 7.878747924, 8.844339535, 9.812198509, 10.776903849, 11.749116737, 12.749729282, 13.788304076, 14.861809717, 16], False, 3, [1, 1, 1, 1, 1, 1, 1, 1, 1, 1, 1, 1, 1, 1, 1, 1, 1, 1, 1], False),
    Part.BSplineCurve([Vector(7.710256, -23.004006, 0), Vector(7.71075, -23.033156, 0), Vector(7.711709, -23.089785, 0), Vector(7.722671, -23.172333, 0), Vector(7.739303, -23.250112, 0), Vector(7.762109, -23.323478, 0), Vector(7.793309, -23.391352, 0), Vector(7.829774, -23.454838, 0), Vector(7.873846, -23.513287, 0), Vector(7.924143, -23.566683, 0), Vector(7.97978, -23.614482, 0), Vector(8.039801, -23.655428, 0), Vector(8.102517, -23.691146, 0), Vector(8.169282, -23.720307, 0), Vector(8.240234, -23.741396, 0), Vector(8.314092, -23.757669, 0), Vector(8.391617, -23.767486, 0), Vector(8.44447, -23.768641, 0), Vector(8.471474, -23.769231, 0)], [4, 1, 1, 1, 1, 1, 1, 1, 1, 1, 1, 1, 1, 1, 1, 1, 4], [0, 1.149387474, 2.232932207, 3.278773642, 4.285224938, 5.256757121, 6.220082341, 7.168479488, 8.137608443, 9.109140627, 10.056190326, 10.999892409, 11.953252726, 12.923240661, 13.915357002, 14.934853301, 16], False, 3, [1, 1, 1, 1, 1, 1, 1, 1, 1, 1, 1, 1, 1, 1, 1, 1, 1, 1, 1], False),
    Part.BSplineCurve([Vector(8.4875, -22.230769, 0), Vector(8.454595, -22.231656, 0), Vector(8.388697, -22.233432, 0), Vector(8.290826, -22.24901, 0), Vector(8.194776, -22.275444, 0), Vector(8.100459, -22.309323, 0), Vector(8.011681, -22.357111, 0), Vector(7.932439, -22.420484, 0), Vector(7.865818, -22.500006, 0), Vector(7.809533, -22.590823, 0), Vector(7.765233, -22.689928, 0), Vector(7.734309, -22.793199, 0), Vector(7.713877, -22.897969, 0), Vector(7.711463, -22.968657, 0), Vector(7.710256, -23.004006, 0)], [4, 1, 1, 1, 1, 1, 1, 1, 1, 1, 1, 1, 4], [0, 0.957879255, 1.91828174, 2.876792425, 3.856375228, 4.831004356, 5.799187063, 6.79220414, 7.836856316, 8.902268238, 9.943090861, 10.971368942, 12], False, 3, [1, 1, 1, 1, 1, 1, 1, 1, 1, 1, 1, 1, 1, 1, 1], False),
    Part.BSplineCurve([Vector(10.838462, -23, 0), Vector(10.838133, -22.976463, 0), Vector(10.837494, -22.930579, 0), Vector(10.828633, -22.863748, 0), Vector(10.817504, -22.800489, 0), Vector(10.799644, -22.741386, 0), Vector(10.776305, -22.686683, 0), Vector(10.747901, -22.635811, 0), Vector(10.715398, -22.58839, 0), Vector(10.665336, -22.532468, 0), Vector(10.594895, -22.473899, 0), Vector(10.500268, -22.422301, 0), Vector(10.397093, -22.390412, 0), Vector(10.325333, -22.386572, 0), Vector(10.288782, -22.384615, 0)], [4, 1, 1, 1, 1, 1, 1, 1, 1, 1, 1, 1, 4], [0, 0.914830409, 1.783417199, 2.618873138, 3.411020283, 4.179090249, 4.927874451, 5.674348476, 6.410336976, 7.841713217, 9.213201474, 10.580551314, 12], False, 3, [1, 1, 1, 1, 1, 1, 1, 1, 1, 1, 1, 1, 1, 1, 1], False),
    Part.BSplineCurve([Vector(10.264744, -23.615385, 0), Vector(10.303674, -23.613411, 0), Vector(10.37985, -23.609548, 0), Vector(10.489204, -23.578351, 0), Vector(10.588246, -23.525828, 0), Vector(10.660575, -23.465828, 0), Vector(10.712974, -23.410296, 0), Vector(10.746329, -23.362786, 0), Vector(10.774717, -23.311712, 0), Vector(10.797899, -23.25688, 0), Vector(10.816596, -23.198211, 0), Vector(10.828863, -23.135546, 0), Vector(10.837465, -23.069148, 0), Vector(10.838122, -23.023534, 0), Vector(10.838462, -23, 0)], [4, 1, 1, 1, 1, 1, 1, 1, 1, 1, 1, 1, 4], [0, 1.480633456, 2.897216237, 4.289382554, 5.720567045, 6.454675042, 7.191244726, 7.924224627, 8.676083236, 9.454506446, 10.26432127, 11.104478565, 12], False, 3, [1, 1, 1, 1, 1, 1, 1, 1, 1, 1, 1, 1, 1, 1, 1], False),
    Part.BSplineCurve([Vector(9.710256, -23.004808, 0), Vector(9.710596, -23.028609, 0), Vector(9.711258, -23.075021, 0), Vector(9.719899, -23.142159, 0), Vector(9.73144, -23.205603, 0), Vector(9.748928, -23.264418, 0), Vector(9.771669, -23.319281, 0), Vector(9.799701, -23.3693, 0), Vector(9.831919, -23.415973, 0), Vector(9.882035, -23.470539, 0), Vector(9.952474, -23.529095, 0), Vector(10.048637, -23.579281, 0), Vector(10.153845, -23.610554, 0), Vector(10.227128, -23.613746, 0), Vector(10.264744, -23.615385, 0)], [4, 1, 1, 1, 1, 1, 1, 1, 1, 1, 1, 1, 4], [0, 0.922112375, 1.798068639, 2.620552757, 3.419964248, 4.17189205, 4.918165909, 5.639229138, 6.36503528, 7.785020832, 9.165298717, 10.544993853, 12], False, 3, [1, 1, 1, 1, 1, 1, 1, 1, 1, 1, 1, 1, 1, 1, 1], False),
    Part.BSplineCurve([Vector(10.288782, -22.384615, 0), Vector(10.247958, -22.386137, 0), Vector(10.169068, -22.389079, 0), Vector(10.05701, -22.421065, 0), Vector(9.95635, -22.471083, 0), Vector(9.883355, -22.52972, 0), Vector(9.833619, -22.585938, 0), Vector(9.800412, -22.63286, 0), Vector(9.77222, -22.684137, 0), Vector(9.750307, -22.740139, 0), Vector(9.730894, -22.799512, 0), Vector(9.720044, -22.864301, 0), Vector(9.711223, -22.932986, 0), Vector(9.710584, -22.980469, 0), Vector(9.710256, -23.004808, 0)], [4, 1, 1, 1, 1, 1, 1, 1, 1, 1, 1, 1, 4], [0, 1.528727296, 2.954179336, 4.335216052, 5.725683216, 6.435919001, 7.148062981, 7.879427438, 8.626027458, 9.402978632, 10.2190538, 11.08711833, 12], False, 3, [1, 1, 1, 1, 1, 1, 1, 1, 1, 1, 1, 1, 1, 1, 1], False),
], False)
sketch6.addConstraint([
    Sketcher.Constraint("Block", 4),
    Sketcher.Constraint("Block", 5),
    Sketcher.Constraint("Block", 9),
    Sketcher.Constraint("Block", 10),
    Sketcher.Constraint("Block", 11),
    Sketcher.Constraint("Block", 12),
    Sketcher.Constraint("Block", 16),
    Sketcher.Constraint("Block", 17),
    Sketcher.Constraint("Block", 19),
    Sketcher.Constraint("Block", 20),
    Sketcher.Constraint("Block", 21),
    Sketcher.Constraint("Block", 22),
    Sketcher.Constraint("Block", 23),
    Sketcher.Constraint("Block", 24),
    Sketcher.Constraint("Block", 25),
    Sketcher.Constraint("Block", 26),
    Sketcher.Constraint("Block", 27),
    Sketcher.Constraint("Block", 28),
    Sketcher.Constraint("Block", 29),
    Sketcher.Constraint("Block", 30),
    Sketcher.Constraint("Block", 31),
    Sketcher.Constraint("Block", 32),
    Sketcher.Constraint("Block", 33),
    Sketcher.Constraint("Block", 34),
    Sketcher.Constraint("Coincident", 0, 2, 1, 1),
    Sketcher.Constraint("Coincident", 1, 2, 2, 1),
    Sketcher.Constraint("Coincident", 2, 2, 3, 1),
    Sketcher.Constraint("Coincident", 3, 2, 4, 2),
    Sketcher.Constraint("Coincident", 5, 1, 6, 1),
    Sketcher.Constraint("Coincident", 6, 2, 7, 1),
    Sketcher.Constraint("Coincident", 7, 2, 8, 1),
    Sketcher.Constraint("Coincident", 8, 2, 9, 2),
    Sketcher.Constraint("Coincident", 12, 1, 13, 1),
    Sketcher.Constraint("Coincident", 13, 2, 0, 1),
    Sketcher.Constraint("Coincident", 14, 2, 15, 1),
    Sketcher.Constraint("Coincident", 15, 2, 16, 2),
    Sketcher.Constraint("Coincident", 17, 1, 18, 1),
    Sketcher.Constraint("Coincident", 18, 2, 14, 1),
    Sketcher.Constraint("Horizontal", 0),
    Sketcher.Constraint("Vertical", 1),
    Sketcher.Constraint("Horizontal", 2),
    Sketcher.Constraint("Vertical", 3),
    Sketcher.Constraint("Vertical", 7),
    Sketcher.Constraint("Vertical", 13),
    Sketcher.Constraint("Horizontal", 14),
    Sketcher.Constraint("Vertical", 15),
    Sketcher.Constraint("Vertical", 18),
    Sketcher.Constraint("Horizontal", 2, 2, 14, 2),
    Sketcher.Constraint("Vertical", 1, 2, 6, 2),
    Sketcher.Constraint("DistanceX", 0, 2, 0, 1, Q("4 mm")),
    Sketcher.Constraint("DistanceY", 1, 2, 1, 1, Q("0.564103 mm")),
    Sketcher.Constraint("DistanceY", 3, 2, 3, 1, Q("0.577724 mm")),
    Sketcher.Constraint("DistanceY", 7, 2, 7, 1, Q("0.646635 mm")),
    Sketcher.Constraint("DistanceY", 6, 2, -1, 1, Q("20.68109 mm")),
])
pad2 = body.newObject("PartDesign::Pad", "Pad001")
pad2.Profile = sketch6
pad2.Length = 0.5
body2 = doc.addObject("PartDesign::Body", "Body001")

sketch7 = body2.newObject("Sketcher::SketchObject", "Sketch006")
sketch7.AttachmentSupport = (doc.getObject("XY_Plane001"), [""])
sketch7.MapMode = "FlatFace"
sketch7.AttachmentOffset = App.Placement(Vector(0, 0, -14), App.Rotation())
sketch7.addGeometry(Part.Circle(Vector(7, 29, 0), Vector(0, 0, 1), 2), False)
sketch7.addConstraint([
    Sketcher.Constraint("Diameter", 0, Q("4 mm")),
    Sketcher.Constraint("DistanceX", -1, 1, 0, 3, Q("7 mm")),
    Sketcher.Constraint("DistanceY", -1, 1, 0, 3, Q("29 mm")),
])
pad3 = body2.newObject("PartDesign::Pad", "Pad002")
pad3.Profile = sketch7
pad3.Type = "TwoLengths"
pad3.Length = 0.1
pad3.Length2 = 15
body3 = doc.addObject("PartDesign::Body", "Body002")

sketch8 = body3.newObject("Sketcher::SketchObject", "Sketch007")
sketch8.AttachmentSupport = (doc.getObject("XY_Plane002"), [""])
sketch8.MapMode = "FlatFace"
sketch8.AttachmentOffset = App.Placement(Vector(0, 0, -17), App.Rotation())
sketch8.addGeometry(Part.Circle(Vector(7, 29, 0), Vector(0, 0, 1), 3), False)
add_polygon(sketch8, [(8.7, 28), (7, 27), (5.3, 28), (5.3, 30), (7, 31), (8.7, 30)])
sketch8.addConstraint([
    Sketcher.Constraint("Vertical", 3),
    Sketcher.Constraint("Vertical", 6),
    Sketcher.Constraint("Parallel", 1, 4),
    Sketcher.Constraint("Parallel", 2, 5),
    Sketcher.Constraint("Horizontal", 3, 2, 5, 2),
    Sketcher.Constraint("Horizontal", 2, 2, 6, 2),
    Sketcher.Constraint("Vertical", 0, 3, 1, 2),
    Sketcher.Constraint("Vertical", 1, 2, 4, 2),
    Sketcher.Constraint("Diameter", 0, Q("6 mm")),
    Sketcher.Constraint("DistanceY", 3, 1, 3, 2, Q("2 mm")),
    Sketcher.Constraint("Angle", 1, Q("-150 deg")),
    Sketcher.Constraint("Distance", 1, Q("2 mm")),
    Sketcher.Constraint("DistanceX", -1, 1, 0, 3, Q("7 mm")),
    Sketcher.Constraint("DistanceY", -1, 1, 0, 3, Q("29 mm")),
    Sketcher.Constraint("DistanceY", -1, 1, 1, 2, Q("27 mm")),
])
pad4 = body3.newObject("PartDesign::Pad", "Pad003")
pad4.Profile = sketch8
pad4.Length = 5

doc.recompute()
